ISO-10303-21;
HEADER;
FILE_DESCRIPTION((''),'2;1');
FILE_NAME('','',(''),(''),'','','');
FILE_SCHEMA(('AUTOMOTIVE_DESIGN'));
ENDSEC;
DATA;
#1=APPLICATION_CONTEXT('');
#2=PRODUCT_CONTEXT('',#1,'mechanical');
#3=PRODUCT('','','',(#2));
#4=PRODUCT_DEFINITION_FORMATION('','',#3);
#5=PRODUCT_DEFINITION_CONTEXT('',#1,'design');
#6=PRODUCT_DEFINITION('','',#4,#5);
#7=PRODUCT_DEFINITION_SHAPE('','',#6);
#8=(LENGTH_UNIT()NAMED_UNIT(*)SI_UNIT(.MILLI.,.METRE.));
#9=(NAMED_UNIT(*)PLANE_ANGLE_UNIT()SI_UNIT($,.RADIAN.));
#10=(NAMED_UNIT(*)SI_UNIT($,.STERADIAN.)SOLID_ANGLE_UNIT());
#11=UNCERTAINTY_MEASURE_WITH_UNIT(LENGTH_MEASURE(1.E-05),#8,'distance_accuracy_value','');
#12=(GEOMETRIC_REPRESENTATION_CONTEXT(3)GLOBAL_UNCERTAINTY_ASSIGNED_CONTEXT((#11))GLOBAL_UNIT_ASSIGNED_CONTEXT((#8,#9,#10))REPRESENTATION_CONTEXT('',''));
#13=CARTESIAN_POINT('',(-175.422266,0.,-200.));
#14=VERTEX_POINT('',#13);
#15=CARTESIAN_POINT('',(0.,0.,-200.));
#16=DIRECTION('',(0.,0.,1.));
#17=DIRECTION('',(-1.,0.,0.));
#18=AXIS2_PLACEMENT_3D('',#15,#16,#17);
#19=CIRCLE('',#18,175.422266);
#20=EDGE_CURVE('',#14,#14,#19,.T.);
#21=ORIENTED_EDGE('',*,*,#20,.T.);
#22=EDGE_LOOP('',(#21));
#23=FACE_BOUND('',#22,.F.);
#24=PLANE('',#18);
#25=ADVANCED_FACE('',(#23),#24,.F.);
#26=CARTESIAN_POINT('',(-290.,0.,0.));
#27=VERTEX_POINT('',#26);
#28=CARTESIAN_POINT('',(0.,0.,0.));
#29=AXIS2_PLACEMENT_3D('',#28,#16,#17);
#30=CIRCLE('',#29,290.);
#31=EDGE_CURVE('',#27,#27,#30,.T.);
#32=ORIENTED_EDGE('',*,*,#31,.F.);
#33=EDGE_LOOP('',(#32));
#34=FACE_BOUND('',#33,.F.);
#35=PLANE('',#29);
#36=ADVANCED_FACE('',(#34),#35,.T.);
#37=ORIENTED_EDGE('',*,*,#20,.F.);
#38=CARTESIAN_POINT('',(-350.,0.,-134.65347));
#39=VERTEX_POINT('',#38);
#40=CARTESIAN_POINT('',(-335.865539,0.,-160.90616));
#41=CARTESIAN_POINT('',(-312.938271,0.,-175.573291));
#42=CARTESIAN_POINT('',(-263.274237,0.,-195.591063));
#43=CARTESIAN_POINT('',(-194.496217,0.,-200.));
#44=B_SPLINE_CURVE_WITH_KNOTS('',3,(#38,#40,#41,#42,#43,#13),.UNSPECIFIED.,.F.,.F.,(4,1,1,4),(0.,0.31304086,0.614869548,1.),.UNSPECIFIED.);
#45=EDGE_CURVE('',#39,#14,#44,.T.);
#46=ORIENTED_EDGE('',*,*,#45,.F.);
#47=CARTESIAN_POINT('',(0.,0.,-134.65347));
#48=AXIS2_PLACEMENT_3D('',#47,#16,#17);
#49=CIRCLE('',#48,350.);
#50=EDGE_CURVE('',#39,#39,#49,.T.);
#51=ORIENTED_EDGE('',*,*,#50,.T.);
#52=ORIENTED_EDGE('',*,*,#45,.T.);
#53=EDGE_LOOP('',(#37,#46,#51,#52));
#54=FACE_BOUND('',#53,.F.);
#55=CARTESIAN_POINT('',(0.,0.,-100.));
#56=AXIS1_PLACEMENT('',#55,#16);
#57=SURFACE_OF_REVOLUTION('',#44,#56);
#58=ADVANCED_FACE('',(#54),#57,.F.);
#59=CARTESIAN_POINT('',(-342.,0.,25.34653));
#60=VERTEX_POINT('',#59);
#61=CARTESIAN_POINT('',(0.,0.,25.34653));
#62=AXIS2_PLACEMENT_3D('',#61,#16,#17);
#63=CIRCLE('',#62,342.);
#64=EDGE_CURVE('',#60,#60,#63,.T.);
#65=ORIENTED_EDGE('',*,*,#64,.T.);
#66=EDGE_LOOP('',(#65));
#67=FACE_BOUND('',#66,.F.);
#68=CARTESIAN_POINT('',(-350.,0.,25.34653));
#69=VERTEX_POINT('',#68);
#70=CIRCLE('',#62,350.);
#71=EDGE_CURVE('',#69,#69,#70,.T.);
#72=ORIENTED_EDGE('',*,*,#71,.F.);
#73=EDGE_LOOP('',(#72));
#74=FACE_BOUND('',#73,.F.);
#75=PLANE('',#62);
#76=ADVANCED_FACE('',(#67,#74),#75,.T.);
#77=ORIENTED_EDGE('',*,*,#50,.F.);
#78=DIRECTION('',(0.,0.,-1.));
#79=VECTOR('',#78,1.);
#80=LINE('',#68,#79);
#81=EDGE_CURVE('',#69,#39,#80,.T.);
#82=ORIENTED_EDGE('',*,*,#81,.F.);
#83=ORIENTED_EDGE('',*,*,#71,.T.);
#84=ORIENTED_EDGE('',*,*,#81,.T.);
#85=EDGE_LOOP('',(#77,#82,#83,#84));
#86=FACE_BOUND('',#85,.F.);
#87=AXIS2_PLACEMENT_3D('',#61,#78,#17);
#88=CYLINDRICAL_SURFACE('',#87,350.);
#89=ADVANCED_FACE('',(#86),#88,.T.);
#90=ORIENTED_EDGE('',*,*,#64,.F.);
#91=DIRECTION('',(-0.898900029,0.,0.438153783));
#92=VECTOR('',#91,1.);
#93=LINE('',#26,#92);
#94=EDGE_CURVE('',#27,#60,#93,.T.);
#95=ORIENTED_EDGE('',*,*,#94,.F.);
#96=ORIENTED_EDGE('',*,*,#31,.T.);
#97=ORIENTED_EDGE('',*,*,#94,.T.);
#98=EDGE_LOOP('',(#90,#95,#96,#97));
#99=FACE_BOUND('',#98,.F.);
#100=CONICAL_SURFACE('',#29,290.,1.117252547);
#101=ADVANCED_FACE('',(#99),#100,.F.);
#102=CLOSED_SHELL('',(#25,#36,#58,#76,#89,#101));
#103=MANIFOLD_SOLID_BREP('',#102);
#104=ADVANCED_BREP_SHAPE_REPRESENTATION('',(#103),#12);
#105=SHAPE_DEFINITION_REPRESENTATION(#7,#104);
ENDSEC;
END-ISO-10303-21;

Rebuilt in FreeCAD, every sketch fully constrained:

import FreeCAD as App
import Part
import Sketcher

doc = App.newDocument("Part")
body = doc.addObject("PartDesign::Body", "Body")

# Sketch on XZ plane
sketch1 = doc.addObject("Sketcher::SketchObject", "Sketch")
body.addObject(sketch1)
sketch1.AttachmentSupport = (doc.XZ_Plane, [""])
sketch1.MapMode = "FlatFace"
sketch1.addGeometry([
    Part.LineSegment(App.Vector(0, -200, 0), App.Vector(0, 0, 0)),  # 0
    Part.LineSegment(App.Vector(0, 0, 0), App.Vector(-290, 0, 0)),  # 1
    Part.LineSegment(App.Vector(-290, 0, 0), App.Vector(-342, 25.34653, 0)),  # 2
    Part.LineSegment(App.Vector(-342, 25.34653, 0), App.Vector(-350, 25.34653, 0)),  # 3
    Part.LineSegment(App.Vector(-350, 25.34653, 0), App.Vector(-350, -134.65347, 0)),  # 4
    Part.BSplineCurve([App.Vector(-350, -134.65347, 0), App.Vector(-335.865539, -160.90616, 0), App.Vector(-312.938271, -175.573291, 0), App.Vector(-263.274237, -195.591063, 0), App.Vector(-194.496217, -200, 0), App.Vector(-175.422266, -200, 0)], [4, 1, 1, 4], [0, 0.31304086, 0.614869548, 1], False, 3, [1, 1, 1, 1, 1, 1], False),  # 5
    Part.LineSegment(App.Vector(-175.422266, -200, 0), App.Vector(0, -200, 0)),  # 6
], False)
sketch1.addConstraint([
    Sketcher.Constraint("Block", 5),
    Sketcher.Constraint("Coincident", 0, 2, 1, 1),
    Sketcher.Constraint("Coincident", 1, 2, 2, 1),
    Sketcher.Constraint("Coincident", 2, 2, 3, 1),
    Sketcher.Constraint("Coincident", 3, 2, 4, 1),
    Sketcher.Constraint("Coincident", 4, 2, 5, 1),
    Sketcher.Constraint("Coincident", 5, 2, 6, 1),
    Sketcher.Constraint("Coincident", 6, 2, 0, 1),
    Sketcher.Constraint("Vertical", 0),
    Sketcher.Constraint("Horizontal", 1),
    Sketcher.Constraint("Horizontal", 3),
    Sketcher.Constraint("Vertical", 4),
    Sketcher.Constraint("Horizontal", 6),
    Sketcher.Constraint("Coincident", 0, 2, -1, 1),
    Sketcher.Constraint("DistanceX", 1, 2, 1, 1, 290.0),
    Sketcher.Constraint("DistanceX", 3, 2, 3, 1, 8.0),
    Sketcher.Constraint("DistanceY", 4, 2, 4, 1, 160.0),
])
revolution = doc.addObject("PartDesign::Revolution", "Revolution")
body.addObject(revolution)
revolution.Profile = sketch1
revolution.ReferenceAxis = (sketch1, ["V_Axis"])
revolution.Angle = 360

doc.recompute()
